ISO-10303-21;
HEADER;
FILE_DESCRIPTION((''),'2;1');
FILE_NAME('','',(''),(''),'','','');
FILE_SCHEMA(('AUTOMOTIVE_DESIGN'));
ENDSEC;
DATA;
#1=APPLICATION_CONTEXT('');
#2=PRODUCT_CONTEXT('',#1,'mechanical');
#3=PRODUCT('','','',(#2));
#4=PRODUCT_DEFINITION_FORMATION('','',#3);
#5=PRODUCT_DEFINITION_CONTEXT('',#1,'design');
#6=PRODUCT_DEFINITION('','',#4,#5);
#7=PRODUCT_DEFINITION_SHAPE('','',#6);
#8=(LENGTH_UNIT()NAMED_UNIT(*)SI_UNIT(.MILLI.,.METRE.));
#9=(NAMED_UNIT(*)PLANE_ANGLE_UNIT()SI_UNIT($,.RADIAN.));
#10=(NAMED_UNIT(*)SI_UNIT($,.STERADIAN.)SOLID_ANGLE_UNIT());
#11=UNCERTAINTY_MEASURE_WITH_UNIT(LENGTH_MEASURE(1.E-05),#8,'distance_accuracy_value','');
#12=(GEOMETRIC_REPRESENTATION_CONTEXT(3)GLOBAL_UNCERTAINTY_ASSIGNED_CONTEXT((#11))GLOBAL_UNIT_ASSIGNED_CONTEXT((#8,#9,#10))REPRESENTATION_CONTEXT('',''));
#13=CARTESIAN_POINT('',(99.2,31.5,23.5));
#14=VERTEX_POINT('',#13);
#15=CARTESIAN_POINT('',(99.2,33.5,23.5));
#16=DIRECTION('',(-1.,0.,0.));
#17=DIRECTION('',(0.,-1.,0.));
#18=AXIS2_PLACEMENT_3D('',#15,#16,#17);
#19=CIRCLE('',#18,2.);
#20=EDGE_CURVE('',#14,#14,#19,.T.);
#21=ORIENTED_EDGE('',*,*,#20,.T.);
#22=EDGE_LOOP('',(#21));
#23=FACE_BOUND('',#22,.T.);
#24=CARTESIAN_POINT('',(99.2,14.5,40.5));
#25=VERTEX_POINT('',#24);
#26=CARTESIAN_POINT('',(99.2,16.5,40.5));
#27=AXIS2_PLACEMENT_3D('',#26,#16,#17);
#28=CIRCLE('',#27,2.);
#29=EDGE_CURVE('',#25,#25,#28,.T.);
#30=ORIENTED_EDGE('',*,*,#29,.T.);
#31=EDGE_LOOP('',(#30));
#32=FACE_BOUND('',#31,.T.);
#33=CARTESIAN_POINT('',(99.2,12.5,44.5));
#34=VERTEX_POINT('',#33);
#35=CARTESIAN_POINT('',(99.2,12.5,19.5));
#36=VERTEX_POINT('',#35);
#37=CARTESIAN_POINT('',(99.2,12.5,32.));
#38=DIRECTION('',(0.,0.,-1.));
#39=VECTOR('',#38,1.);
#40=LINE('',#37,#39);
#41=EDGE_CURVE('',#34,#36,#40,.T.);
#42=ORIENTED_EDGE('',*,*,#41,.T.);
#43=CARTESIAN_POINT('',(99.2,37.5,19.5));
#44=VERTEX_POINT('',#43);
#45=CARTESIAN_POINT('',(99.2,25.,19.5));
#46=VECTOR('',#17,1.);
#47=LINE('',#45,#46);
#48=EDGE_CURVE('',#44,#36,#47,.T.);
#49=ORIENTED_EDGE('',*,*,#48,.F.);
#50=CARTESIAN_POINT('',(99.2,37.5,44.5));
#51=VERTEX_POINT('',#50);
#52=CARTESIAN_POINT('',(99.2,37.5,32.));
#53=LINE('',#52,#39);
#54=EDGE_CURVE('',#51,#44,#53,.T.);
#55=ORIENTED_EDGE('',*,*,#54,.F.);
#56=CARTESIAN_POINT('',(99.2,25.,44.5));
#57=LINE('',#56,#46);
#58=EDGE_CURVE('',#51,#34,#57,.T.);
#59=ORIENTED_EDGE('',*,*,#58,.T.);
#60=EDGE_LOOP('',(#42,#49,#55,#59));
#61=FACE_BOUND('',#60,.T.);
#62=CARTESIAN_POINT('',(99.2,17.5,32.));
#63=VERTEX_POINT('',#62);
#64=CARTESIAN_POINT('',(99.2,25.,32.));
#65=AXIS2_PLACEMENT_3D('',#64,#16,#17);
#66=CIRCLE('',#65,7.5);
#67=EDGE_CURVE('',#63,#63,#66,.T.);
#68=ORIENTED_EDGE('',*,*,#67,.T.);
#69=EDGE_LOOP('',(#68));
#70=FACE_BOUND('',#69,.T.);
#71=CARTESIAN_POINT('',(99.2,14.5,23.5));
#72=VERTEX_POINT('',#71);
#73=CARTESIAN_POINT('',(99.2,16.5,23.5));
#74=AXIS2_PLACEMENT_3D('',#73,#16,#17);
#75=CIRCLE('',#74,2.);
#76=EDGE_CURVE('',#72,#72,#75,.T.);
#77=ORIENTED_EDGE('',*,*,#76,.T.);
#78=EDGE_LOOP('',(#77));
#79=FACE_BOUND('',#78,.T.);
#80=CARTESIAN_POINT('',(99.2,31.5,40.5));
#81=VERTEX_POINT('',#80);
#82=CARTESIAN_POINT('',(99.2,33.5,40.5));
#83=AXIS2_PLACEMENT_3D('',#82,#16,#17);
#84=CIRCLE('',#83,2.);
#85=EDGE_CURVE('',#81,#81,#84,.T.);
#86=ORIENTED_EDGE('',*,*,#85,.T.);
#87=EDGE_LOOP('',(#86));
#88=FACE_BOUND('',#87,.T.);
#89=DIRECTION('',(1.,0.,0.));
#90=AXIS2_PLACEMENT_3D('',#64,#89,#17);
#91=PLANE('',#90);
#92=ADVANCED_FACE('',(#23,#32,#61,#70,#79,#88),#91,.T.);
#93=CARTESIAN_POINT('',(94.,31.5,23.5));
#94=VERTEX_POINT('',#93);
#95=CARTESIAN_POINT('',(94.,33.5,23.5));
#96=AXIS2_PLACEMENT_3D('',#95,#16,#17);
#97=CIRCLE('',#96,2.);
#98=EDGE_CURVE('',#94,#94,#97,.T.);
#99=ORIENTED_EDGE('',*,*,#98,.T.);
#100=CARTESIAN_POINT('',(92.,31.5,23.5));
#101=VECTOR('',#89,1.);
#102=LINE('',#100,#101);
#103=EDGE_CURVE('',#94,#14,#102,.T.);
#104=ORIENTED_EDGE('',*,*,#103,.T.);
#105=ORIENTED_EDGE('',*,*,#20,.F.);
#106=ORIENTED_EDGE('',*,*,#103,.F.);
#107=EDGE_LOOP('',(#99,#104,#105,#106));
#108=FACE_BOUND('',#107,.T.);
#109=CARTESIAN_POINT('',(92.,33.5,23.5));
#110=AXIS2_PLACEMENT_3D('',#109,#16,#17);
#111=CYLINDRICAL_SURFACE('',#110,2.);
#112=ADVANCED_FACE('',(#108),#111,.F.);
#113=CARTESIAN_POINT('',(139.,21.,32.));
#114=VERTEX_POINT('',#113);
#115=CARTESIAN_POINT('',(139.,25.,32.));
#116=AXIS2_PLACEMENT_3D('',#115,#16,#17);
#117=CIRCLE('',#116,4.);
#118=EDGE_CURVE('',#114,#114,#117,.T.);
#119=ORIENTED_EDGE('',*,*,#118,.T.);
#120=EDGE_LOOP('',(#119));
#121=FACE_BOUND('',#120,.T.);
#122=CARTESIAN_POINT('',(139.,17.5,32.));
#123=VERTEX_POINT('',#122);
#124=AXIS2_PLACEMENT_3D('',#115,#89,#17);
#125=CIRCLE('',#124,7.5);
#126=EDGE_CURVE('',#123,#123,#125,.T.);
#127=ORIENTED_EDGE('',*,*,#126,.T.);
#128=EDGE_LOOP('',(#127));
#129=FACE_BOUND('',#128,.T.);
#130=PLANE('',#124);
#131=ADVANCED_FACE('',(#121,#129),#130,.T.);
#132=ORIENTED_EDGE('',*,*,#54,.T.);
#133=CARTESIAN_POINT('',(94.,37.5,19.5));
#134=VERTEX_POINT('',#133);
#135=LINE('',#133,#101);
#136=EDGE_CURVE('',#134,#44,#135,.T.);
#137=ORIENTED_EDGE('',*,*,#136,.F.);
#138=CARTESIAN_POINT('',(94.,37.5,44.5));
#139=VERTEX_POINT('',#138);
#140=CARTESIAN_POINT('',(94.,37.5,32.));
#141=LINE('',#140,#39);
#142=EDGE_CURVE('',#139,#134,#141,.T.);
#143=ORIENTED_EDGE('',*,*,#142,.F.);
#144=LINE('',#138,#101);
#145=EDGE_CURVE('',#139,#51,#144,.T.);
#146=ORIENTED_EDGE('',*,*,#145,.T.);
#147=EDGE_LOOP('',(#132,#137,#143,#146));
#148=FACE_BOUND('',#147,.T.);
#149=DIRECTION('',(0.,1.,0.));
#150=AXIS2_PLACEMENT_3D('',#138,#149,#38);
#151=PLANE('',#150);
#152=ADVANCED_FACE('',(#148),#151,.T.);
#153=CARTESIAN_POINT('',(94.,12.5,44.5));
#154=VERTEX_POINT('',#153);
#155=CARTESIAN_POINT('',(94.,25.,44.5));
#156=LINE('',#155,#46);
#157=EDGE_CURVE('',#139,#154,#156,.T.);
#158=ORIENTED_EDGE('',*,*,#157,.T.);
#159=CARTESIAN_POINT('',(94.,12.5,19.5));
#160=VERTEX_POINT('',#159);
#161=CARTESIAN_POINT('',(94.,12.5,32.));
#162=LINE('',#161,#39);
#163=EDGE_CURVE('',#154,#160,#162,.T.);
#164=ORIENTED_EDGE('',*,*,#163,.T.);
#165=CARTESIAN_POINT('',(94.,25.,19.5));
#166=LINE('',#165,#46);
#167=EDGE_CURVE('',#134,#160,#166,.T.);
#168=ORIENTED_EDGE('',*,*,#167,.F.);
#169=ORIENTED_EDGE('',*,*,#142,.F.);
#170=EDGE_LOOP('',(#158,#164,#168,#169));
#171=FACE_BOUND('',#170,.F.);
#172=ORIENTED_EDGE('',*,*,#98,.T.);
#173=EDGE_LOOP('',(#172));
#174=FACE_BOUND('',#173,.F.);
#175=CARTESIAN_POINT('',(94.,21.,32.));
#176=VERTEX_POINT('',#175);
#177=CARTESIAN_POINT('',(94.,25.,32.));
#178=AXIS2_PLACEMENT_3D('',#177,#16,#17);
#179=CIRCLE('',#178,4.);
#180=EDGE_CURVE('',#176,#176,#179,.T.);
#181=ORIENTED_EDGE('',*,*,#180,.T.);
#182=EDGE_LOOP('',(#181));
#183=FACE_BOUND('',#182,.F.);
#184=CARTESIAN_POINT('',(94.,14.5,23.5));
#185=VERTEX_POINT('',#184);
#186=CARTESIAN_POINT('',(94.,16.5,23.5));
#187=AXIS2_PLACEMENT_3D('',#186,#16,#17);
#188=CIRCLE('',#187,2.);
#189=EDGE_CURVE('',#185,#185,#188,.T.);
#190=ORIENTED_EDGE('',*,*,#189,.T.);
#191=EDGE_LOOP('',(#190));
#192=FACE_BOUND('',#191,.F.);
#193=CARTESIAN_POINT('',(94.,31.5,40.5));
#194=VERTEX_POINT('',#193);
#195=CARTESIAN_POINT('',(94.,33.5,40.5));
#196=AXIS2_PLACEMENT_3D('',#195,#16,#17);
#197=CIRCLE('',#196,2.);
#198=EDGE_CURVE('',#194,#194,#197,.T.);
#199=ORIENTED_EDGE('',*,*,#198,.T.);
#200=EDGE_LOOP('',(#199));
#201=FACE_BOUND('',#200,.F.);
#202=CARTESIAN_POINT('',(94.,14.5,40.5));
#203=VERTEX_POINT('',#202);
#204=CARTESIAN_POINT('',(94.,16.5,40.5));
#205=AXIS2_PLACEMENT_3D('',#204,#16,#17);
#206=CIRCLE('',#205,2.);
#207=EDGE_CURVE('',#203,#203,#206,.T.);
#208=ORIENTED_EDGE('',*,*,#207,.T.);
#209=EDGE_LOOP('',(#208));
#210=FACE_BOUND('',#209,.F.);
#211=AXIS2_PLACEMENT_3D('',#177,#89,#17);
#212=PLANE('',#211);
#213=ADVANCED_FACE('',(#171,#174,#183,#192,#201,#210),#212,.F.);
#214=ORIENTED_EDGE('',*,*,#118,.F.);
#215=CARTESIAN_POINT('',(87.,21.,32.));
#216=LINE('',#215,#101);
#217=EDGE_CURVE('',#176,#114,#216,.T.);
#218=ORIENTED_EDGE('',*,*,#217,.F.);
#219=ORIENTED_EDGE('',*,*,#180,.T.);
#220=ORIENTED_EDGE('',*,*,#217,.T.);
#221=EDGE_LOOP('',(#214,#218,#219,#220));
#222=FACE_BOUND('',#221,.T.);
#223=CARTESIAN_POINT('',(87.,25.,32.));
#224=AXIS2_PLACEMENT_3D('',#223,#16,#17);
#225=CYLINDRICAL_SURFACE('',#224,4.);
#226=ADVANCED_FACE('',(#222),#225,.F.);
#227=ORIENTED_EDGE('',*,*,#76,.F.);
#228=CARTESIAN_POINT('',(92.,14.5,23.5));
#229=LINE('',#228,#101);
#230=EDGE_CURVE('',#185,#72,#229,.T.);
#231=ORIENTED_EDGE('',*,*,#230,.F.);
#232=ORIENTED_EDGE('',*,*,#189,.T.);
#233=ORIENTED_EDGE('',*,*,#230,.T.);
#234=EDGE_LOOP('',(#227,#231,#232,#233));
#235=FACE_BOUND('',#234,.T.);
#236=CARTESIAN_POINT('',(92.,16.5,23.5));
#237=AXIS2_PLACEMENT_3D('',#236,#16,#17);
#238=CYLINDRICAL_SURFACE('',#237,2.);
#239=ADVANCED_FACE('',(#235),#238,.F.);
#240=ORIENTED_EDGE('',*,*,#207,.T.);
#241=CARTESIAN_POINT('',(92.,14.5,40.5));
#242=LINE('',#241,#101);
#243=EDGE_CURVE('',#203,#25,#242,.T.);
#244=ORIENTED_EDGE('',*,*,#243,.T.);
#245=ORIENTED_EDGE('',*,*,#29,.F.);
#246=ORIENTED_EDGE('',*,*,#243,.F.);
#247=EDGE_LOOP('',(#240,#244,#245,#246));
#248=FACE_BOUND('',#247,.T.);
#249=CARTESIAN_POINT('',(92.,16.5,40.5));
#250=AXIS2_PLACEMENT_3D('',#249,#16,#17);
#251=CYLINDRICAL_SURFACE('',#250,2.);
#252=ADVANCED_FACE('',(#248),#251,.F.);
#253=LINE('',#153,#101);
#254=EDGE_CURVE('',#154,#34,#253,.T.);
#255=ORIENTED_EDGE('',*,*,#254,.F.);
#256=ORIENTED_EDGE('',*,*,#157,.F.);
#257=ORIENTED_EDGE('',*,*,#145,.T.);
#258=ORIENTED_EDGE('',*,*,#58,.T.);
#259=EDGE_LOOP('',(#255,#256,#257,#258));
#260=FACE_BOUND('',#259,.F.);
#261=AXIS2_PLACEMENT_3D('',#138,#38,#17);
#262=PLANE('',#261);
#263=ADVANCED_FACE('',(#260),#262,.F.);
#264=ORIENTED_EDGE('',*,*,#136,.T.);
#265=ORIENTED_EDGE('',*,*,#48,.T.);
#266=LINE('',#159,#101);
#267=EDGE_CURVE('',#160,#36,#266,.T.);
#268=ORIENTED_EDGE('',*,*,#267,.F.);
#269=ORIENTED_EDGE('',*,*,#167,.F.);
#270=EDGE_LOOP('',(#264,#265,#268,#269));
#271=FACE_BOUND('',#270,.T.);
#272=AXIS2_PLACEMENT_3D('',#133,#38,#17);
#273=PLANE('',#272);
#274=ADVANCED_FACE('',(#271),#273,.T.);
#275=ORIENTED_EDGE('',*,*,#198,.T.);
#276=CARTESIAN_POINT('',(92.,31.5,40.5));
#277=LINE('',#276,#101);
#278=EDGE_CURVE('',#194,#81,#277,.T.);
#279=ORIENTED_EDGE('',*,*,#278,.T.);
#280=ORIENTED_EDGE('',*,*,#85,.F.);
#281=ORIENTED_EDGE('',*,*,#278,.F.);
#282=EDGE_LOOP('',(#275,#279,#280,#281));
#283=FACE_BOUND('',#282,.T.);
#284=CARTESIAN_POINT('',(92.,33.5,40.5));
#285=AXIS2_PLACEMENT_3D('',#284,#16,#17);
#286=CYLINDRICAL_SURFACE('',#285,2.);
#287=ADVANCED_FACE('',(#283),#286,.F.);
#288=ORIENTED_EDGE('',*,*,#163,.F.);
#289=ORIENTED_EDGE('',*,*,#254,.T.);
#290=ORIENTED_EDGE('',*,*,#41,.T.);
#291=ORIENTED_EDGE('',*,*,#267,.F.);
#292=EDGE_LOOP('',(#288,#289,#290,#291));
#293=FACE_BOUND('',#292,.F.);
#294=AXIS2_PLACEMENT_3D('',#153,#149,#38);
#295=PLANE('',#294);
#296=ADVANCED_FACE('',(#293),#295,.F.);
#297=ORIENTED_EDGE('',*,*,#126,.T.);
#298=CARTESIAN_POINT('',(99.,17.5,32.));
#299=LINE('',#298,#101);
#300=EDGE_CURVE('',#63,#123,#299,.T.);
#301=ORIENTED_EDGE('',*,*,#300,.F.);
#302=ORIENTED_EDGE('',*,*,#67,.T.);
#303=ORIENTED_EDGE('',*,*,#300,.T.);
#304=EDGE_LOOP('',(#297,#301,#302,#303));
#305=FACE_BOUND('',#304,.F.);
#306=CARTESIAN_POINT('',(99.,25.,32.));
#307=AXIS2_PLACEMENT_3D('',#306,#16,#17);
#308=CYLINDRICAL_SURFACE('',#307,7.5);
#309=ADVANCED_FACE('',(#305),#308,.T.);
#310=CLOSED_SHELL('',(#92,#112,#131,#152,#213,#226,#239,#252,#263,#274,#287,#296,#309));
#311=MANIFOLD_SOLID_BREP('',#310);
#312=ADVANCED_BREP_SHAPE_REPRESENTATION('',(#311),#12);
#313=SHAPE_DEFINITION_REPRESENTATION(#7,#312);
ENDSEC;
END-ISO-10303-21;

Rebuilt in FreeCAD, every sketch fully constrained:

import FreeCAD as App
import Part
import Sketcher


def add_polygon(sketch, points):
    """Adds a closed chain of lines whose ends are joined by coincident constraints."""
    first, n = sketch.GeometryCount, len(points)
    for a, b in zip(points, points[1:] + points[:1]):
        sketch.addGeometry(Part.LineSegment(App.Vector(*a, 0), App.Vector(*b, 0)), False)
    for i in range(n):
        sketch.addConstraint(Sketcher.Constraint("Coincident", first + i, 2, first + (i + 1) % n, 1))

doc = App.newDocument("Part")
body = doc.addObject("PartDesign::Body", "Body")

# Sketch on XY plane
sketch1 = body.newObject("Sketcher::SketchObject", "Sketch")
sketch1.AttachmentSupport = (doc.getObject("XY_Plane"), [""])
sketch1.MapMode = "FlatFace"
sketch1.AttachmentOffset = App.Placement(App.Vector(0, 0, -2), App.Rotation())
sketch1.addGeometry(Part.Circle(App.Vector(21, 21, 0), App.Vector(0, 0, 1), 2), False)
sketch1.addConstraint([
    Sketcher.Constraint("Diameter", 0, 4.0),
    Sketcher.Constraint("DistanceX", -1, 1, 0, 3, 21.0),
    Sketcher.Constraint("DistanceY", -1, 1, 0, 3, 21.0),
])
pad1 = body.newObject("PartDesign::Pad", "Pad")
pad1.Profile = sketch1
pad1.Length = 10
body2 = doc.addObject("PartDesign::Body", "Body001")

# Sketch on XY plane
sketch2 = body2.newObject("Sketcher::SketchObject", "Sketch001")
sketch2.AttachmentSupport = (doc.getObject("XY_Plane001"), [""])
sketch2.MapMode = "FlatFace"
sketch2.AttachmentOffset = App.Placement(App.Vector(0, 0, -2), App.Rotation())
sketch2.addGeometry(Part.Circle(App.Vector(21, 4, 0), App.Vector(0, 0, 1), 2), False)
sketch2.addConstraint([
    Sketcher.Constraint("Diameter", 0, 4.0),
    Sketcher.Constraint("DistanceX", -1, 1, 0, 3, 21.0),
    Sketcher.Constraint("DistanceY", -1, 1, 0, 3, 4.0),
])
pad2 = body2.newObject("PartDesign::Pad", "Pad001")
pad2.Profile = sketch2
pad2.Length = 10
body3 = doc.addObject("PartDesign::Body", "Body002")

# Sketch on XY plane
sketch3 = body3.newObject("Sketcher::SketchObject", "Sketch002")
sketch3.AttachmentSupport = (doc.getObject("XY_Plane002"), [""])
sketch3.MapMode = "FlatFace"
sketch3.AttachmentOffset = App.Placement(App.Vector(0, 0, -2), App.Rotation())
sketch3.addGeometry(Part.Circle(App.Vector(4, 21, 0), App.Vector(0, 0, 1), 2), False)
sketch3.addConstraint([
    Sketcher.Constraint("Diameter", 0, 4.0),
    Sketcher.Constraint("DistanceX", -1, 1, 0, 3, 4.0),
    Sketcher.Constraint("DistanceY", -1, 1, 0, 3, 21.0),
])
pad3 = body3.newObject("PartDesign::Pad", "Pad002")
pad3.Profile = sketch3
pad3.Length = 10
body4 = doc.addObject("PartDesign::Body", "Body003")

# Sketch on XY plane
sketch4 = body4.newObject("Sketcher::SketchObject", "Sketch003")
sketch4.AttachmentSupport = (doc.getObject("XY_Plane003"), [""])
sketch4.MapMode = "FlatFace"
sketch4.AttachmentOffset = App.Placement(App.Vector(0, 0, -2), App.Rotation())
sketch4.addGeometry(Part.Circle(App.Vector(4, 4, 0), App.Vector(0, 0, 1), 2), False)
sketch4.addConstraint([
    Sketcher.Constraint("Diameter", 0, 4.0),
    Sketcher.Constraint("DistanceX", -1, 1, 0, 3, 4.0),
    Sketcher.Constraint("DistanceY", -1, 1, 0, 3, 4.0),
])
pad4 = body4.newObject("PartDesign::Pad", "Pad003")
pad4.Profile = sketch4
pad4.Length = 10
body5 = doc.addObject("PartDesign::Body", "Body004")

# Sketch on XY plane
sketch5 = body5.newObject("Sketcher::SketchObject", "Sketch004")
sketch5.AttachmentSupport = (doc.getObject("XY_Plane004"), [""])
sketch5.MapMode = "FlatFace"
sketch5.AttachmentOffset = App.Placement(App.Vector(0, 0, -7), App.Rotation())
sketch5.addGeometry(Part.Circle(App.Vector(12.5, 12.5, 0), App.Vector(0, 0, 1), 4), False)
sketch5.addConstraint([
    Sketcher.Constraint("Diameter", 0, 8.0),
    Sketcher.Constraint("DistanceX", -1, 1, 0, 3, 12.5),
    Sketcher.Constraint("DistanceY", -1, 1, 0, 3, 12.5),
])
pad5 = body5.newObject("PartDesign::Pad", "Pad004")
pad5.Profile = sketch5
pad5.Length = 60
body6 = doc.addObject("PartDesign::Body", "Body005")

# Sketch on XY plane
sketch6 = body6.newObject("Sketcher::SketchObject", "Sketch005")
sketch6.AttachmentSupport = (doc.getObject("XY_Plane005"), [""])
sketch6.MapMode = "FlatFace"
sketch6.AttachmentOffset = App.Placement(App.Vector(0, 0, 5), App.Rotation())
sketch6.addGeometry(Part.Circle(App.Vector(12, 12, 0), App.Vector(0, 0, 1), 8), False)
sketch6.addConstraint([
    Sketcher.Constraint("Diameter", 0, 15.0),
    Sketcher.Constraint("DistanceX", -1, 1, 0, 3, 12.5),
    Sketcher.Constraint("DistanceY", -1, 1, 0, 3, 12.5),
])
pad6 = body6.newObject("PartDesign::Pad", "Pad005")
pad6.Profile = sketch6
pad6.Length = 40
body7 = doc.addObject("PartDesign::Body", "Body006")

# Sketch on XY plane
sketch7 = body7.newObject("Sketcher::SketchObject", "Sketch006")
sketch7.AttachmentSupport = (doc.getObject("XY_Plane006"), [""])
sketch7.MapMode = "FlatFace"
add_polygon(sketch7, [(0, 25), (0, 0), (25, 0), (25, 25)])  # lines 0-3
sketch7.addConstraint([
    Sketcher.Constraint("Vertical", 0),
    Sketcher.Constraint("Horizontal", 1),
    Sketcher.Constraint("Vertical", 2),
    Sketcher.Constraint("Horizontal", 3),
    Sketcher.Constraint("Coincident", 0, 2, -1, 1),
    Sketcher.Constraint("Equal", 3, 0),
    Sketcher.Constraint("DistanceX", 1, 1, 1, 2, 25.0),
])
pad7 = body7.newObject("PartDesign::Pad", "Pad006")
pad7.Profile = sketch7
pad7.Length = 5.2
doc.recompute()

boolean = body7.newObject("PartDesign::Boolean", "Boolean")
boolean.Type = "Fuse"
boolean.addObjects([body6])
doc.recompute()

boolean2 = body7.newObject("PartDesign::Boolean", "Boolean001")
boolean2.Type = "Cut"
boolean2.addObjects([body5])
doc.recompute()

boolean3 = body7.newObject("PartDesign::Boolean", "Boolean002")
boolean3.Type = "Cut"
boolean3.addObjects([body4])
doc.recompute()

boolean4 = body7.newObject("PartDesign::Boolean", "Boolean003")
boolean4.Type = "Cut"
boolean4.addObjects([body3])
doc.recompute()

boolean5 = body7.newObject("PartDesign::Boolean", "Boolean004")
boolean5.Type = "Cut"
boolean5.addObjects([body2])
doc.recompute()

boolean6 = body7.newObject("PartDesign::Boolean", "Boolean005")
boolean6.Type = "Cut"
boolean6.addObjects([body])
body8 = doc.addObject("PartDesign::Body", "Body007")
doc.recompute()

body7.Placement = App.Placement(App.Vector(0, 0, 0), App.Rotation(App.Vector(1, 0, 0), 270))
boolean7 = body8.newObject("PartDesign::Boolean", "Boolean006")
boolean7.Type = "Fuse"
boolean7.addObjects([body7])
body9 = doc.addObject("PartDesign::Body", "Body008")
doc.recompute()

body8.Placement = App.Placement(App.Vector(94, 37.5, 44.5), App.Rotation(App.Vector(0, 0, 1), 270))
boolean8 = body9.newObject("PartDesign::Boolean", "Boolean007")
boolean8.Type = "Fuse"
boolean8.addObjects([body8])

doc.recompute()
